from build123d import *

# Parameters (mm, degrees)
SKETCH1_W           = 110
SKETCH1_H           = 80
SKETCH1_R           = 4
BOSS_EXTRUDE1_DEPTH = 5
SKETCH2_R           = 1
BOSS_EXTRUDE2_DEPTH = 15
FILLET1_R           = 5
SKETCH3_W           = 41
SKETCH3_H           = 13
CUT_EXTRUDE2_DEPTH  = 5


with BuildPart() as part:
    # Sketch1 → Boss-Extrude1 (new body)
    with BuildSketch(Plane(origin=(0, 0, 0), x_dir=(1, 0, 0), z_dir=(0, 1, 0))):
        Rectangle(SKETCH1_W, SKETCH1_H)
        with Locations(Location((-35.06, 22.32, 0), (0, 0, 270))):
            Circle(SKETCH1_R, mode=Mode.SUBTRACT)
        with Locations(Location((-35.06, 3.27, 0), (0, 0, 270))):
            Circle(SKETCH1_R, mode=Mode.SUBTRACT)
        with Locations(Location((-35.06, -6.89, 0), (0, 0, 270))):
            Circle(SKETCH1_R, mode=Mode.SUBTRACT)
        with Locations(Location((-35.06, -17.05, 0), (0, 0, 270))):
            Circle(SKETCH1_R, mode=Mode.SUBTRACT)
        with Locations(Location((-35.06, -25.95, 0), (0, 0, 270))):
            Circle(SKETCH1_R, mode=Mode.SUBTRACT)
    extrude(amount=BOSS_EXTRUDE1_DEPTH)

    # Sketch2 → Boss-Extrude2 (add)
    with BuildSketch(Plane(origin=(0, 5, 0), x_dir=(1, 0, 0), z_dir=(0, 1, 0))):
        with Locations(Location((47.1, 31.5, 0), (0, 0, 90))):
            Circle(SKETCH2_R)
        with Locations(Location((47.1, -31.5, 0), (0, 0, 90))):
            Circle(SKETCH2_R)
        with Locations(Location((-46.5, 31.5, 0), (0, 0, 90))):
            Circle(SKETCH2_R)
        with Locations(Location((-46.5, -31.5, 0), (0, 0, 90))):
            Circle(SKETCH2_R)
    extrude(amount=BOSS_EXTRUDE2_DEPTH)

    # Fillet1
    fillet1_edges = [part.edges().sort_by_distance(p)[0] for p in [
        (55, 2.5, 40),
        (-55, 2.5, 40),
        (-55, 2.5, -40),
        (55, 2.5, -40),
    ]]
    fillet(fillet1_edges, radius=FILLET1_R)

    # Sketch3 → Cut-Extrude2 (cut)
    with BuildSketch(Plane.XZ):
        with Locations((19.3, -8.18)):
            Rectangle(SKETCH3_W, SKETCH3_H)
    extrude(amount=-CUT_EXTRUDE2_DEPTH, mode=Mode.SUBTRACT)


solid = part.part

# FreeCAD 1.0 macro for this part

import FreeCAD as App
import Part
import Sketcher
Q = App.Units.Quantity


def edges_at(feature, points):
    """Names of the edges that pass closest to the given points."""
    edges = feature.Shape.Edges
    near = lambda p: min(range(len(edges)), key=lambda i: edges[i].distToShape(Part.Vertex(*p))[0])
    return sorted({f"Edge{near(p) + 1}" for p in points})


def add_polygon(sketch, points):
    """Adds a closed chain of lines whose ends are joined by coincident constraints."""
    first, n = sketch.GeometryCount, len(points)
    for a, b in zip(points, points[1:] + points[:1]):
        sketch.addGeometry(Part.LineSegment(App.Vector(*a, 0), App.Vector(*b, 0)), False)
    for i in range(n):
        sketch.addConstraint(Sketcher.Constraint("Coincident", first + i, 2, first + (i + 1) % n, 1))

doc = App.newDocument("Part")
params = doc.addObject("Spreadsheet::Sheet", "Params")
for row, (alias, value) in enumerate([
    ("sketch1_diameter", "8 mm"),
    ("sketch1_width", "110 mm"),
    ("sketch1_height", "80 mm"),
    ("pad1_length", "5 mm"),
    ("sketch2_diameter", "2 mm"),
    ("pad2_length", "15 mm"),
    ("fillet_radius", "5 mm"),
    ("sketch3_width", "41 mm"),
    ("sketch3_height", "13 mm"),
    ("pocket1_length", "5 mm"),
], start=1):
    params.set(f"A{row}", alias)
    params.set(f"B{row}", "=" + value)
    params.setAlias(f"B{row}", alias)

body = doc.addObject("PartDesign::Body", "Body")

# Sketch on XZ plane
sketch1 = body.newObject("Sketcher::SketchObject", "Sketch")
sketch1.AttachmentSupport = (doc.getObject("XZ_Plane"), [""])
sketch1.MapMode = "FlatFace"
add_polygon(sketch1, [(-55, -40), (-55, 40), (55, 40), (55, -40)])  # lines 0-3
sketch1.addGeometry(Part.Circle(App.Vector(-35.1, 25.9, 0), App.Vector(0, 0, 1), 4), False)  # 4
sketch1.addGeometry(Part.Circle(App.Vector(-35.1, 17.1, 0), App.Vector(0, 0, 1), 4), False)  # 5
sketch1.addGeometry(Part.Circle(App.Vector(-35.1, 6.9, 0), App.Vector(0, 0, 1), 4), False)  # 6
sketch1.addGeometry(Part.Circle(App.Vector(-35.1, -3.3, 0), App.Vector(0, 0, 1), 4), False)  # 7
sketch1.addGeometry(Part.Circle(App.Vector(-35.1, -22.3, 0), App.Vector(0, 0, 1), 4), False)  # 8
sketch1.addConstraint([
    Sketcher.Constraint("Vertical", 0),
    Sketcher.Constraint("Horizontal", 1),
    Sketcher.Constraint("Vertical", 2),
    Sketcher.Constraint("Horizontal", 3),
    Sketcher.Constraint("Equal", 4, 5),
    Sketcher.Constraint("Equal", 5, 6),
    Sketcher.Constraint("Equal", 6, 7),
    Sketcher.Constraint("Equal", 7, 8),
    Sketcher.Constraint("Symmetric", 0, 2, 2, 2, -1, 1),
    Sketcher.Constraint("Vertical", 4, 3, 5, 3),
    Sketcher.Constraint("Vertical", 5, 3, 6, 3),
    Sketcher.Constraint("Vertical", 6, 3, 7, 3),
    Sketcher.Constraint("Vertical", 7, 3, 8, 3),
    Sketcher.Constraint("Diameter", 4, Q("8 mm")),
    Sketcher.Constraint("DistanceX", 1, 1, 1, 2, Q("110 mm")),
    Sketcher.Constraint("DistanceY", 0, 1, 0, 2, Q("80 mm")),
    Sketcher.Constraint("DistanceY", 5, 3, 4, 3, Q("8.9 mm")),
    Sketcher.Constraint("DistanceX", 4, 3, -1, 1, Q("35.06 mm")),
    Sketcher.Constraint("DistanceY", -1, 1, 4, 3, Q("25.95 mm")),
    Sketcher.Constraint("DistanceY", -1, 1, 6, 3, Q("6.89 mm")),
    Sketcher.Constraint("DistanceY", 7, 3, -1, 1, Q("3.27 mm")),
    Sketcher.Constraint("DistanceY", 8, 3, -1, 1, Q("22.32 mm")),
])
sketch1.setExpression("Constraints[17]", "Params.sketch1_diameter")
sketch1.setExpression("Constraints[18]", "Params.sketch1_width")
sketch1.setExpression("Constraints[19]", "Params.sketch1_height")
pad1 = body.newObject("PartDesign::Pad", "Pad")
pad1.Profile = sketch1
pad1.setExpression("Length", "Params.pad1_length")
pad1.Reversed = True

# Sketch on XZ plane
sketch2 = body.newObject("Sketcher::SketchObject", "Sketch001")
sketch2.AttachmentSupport = (doc.getObject("XZ_Plane"), [""])
sketch2.MapMode = "FlatFace"
sketch2.AttachmentOffset = App.Placement(App.Vector(0, 0, -5), App.Rotation())
sketch2.addGeometry([
    Part.Circle(App.Vector(47.1, -31.5, 0), App.Vector(0, 0, 1), 1),
    Part.Circle(App.Vector(47.1, 31.5, 0), App.Vector(0, 0, 1), 1),
    Part.Circle(App.Vector(-46.5, -31.5, 0), App.Vector(0, 0, 1), 1),
    Part.Circle(App.Vector(-46.5, 31.5, 0), App.Vector(0, 0, 1), 1),
], False)
sketch2.addConstraint([
    Sketcher.Constraint("Equal", 0, 1),
    Sketcher.Constraint("Equal", 1, 2),
    Sketcher.Constraint("Equal", 2, 3),
    Sketcher.Constraint("Symmetric", 0, 3, 1, 3, -1),
    Sketcher.Constraint("Symmetric", 2, 3, 3, 3, -1),
    Sketcher.Constraint("Horizontal", 0, 3, 2, 3),
    Sketcher.Constraint("Diameter", 0, Q("2 mm")),
    Sketcher.Constraint("DistanceY", 0, 3, 1, 3, Q("63 mm")),
    Sketcher.Constraint("DistanceX", -1, 1, 0, 3, Q("47.1 mm")),
    Sketcher.Constraint("DistanceX", 2, 3, -1, 1, Q("46.5 mm")),
])
sketch2.setExpression("Constraints[6]", "Params.sketch2_diameter")
pad2 = body.newObject("PartDesign::Pad", "Pad001")
pad2.Profile = sketch2
pad2.setExpression("Length", "Params.pad2_length")
pad2.Reversed = True
doc.recompute()

fillet = body.newObject("PartDesign::Fillet", "Fillet")
fillet.Base = (pad2, edges_at(pad2, [
    (55, 2.5, 40),
    (-55, 2.5, 40),
    (-55, 2.5, -40),
    (55, 2.5, -40),
]))
fillet.setExpression("Radius", "Params.fillet_radius")

# Sketch on XZ plane
sketch3 = body.newObject("Sketcher::SketchObject", "Sketch002")
sketch3.AttachmentSupport = (doc.getObject("XZ_Plane"), [""])
sketch3.MapMode = "FlatFace"
add_polygon(sketch3, [(-1, -2), (-1, -15), (40, -15), (40, -2)])  # lines 0-3
sketch3.addConstraint([
    Sketcher.Constraint("Vertical", 0),
    Sketcher.Constraint("Horizontal", 1),
    Sketcher.Constraint("Vertical", 2),
    Sketcher.Constraint("Horizontal", 3),
    Sketcher.Constraint("DistanceX", 1, 1, 1, 2, Q("41 mm")),
    Sketcher.Constraint("DistanceY", 0, 2, 0, 1, Q("13 mm")),
    Sketcher.Constraint("DistanceX", 0, 2, -1, 1, Q("1.2 mm")),
    Sketcher.Constraint("DistanceY", 0, 2, -1, 1, Q("14.68 mm")),
])
sketch3.setExpression("Constraints[8]", "Params.sketch3_width")
sketch3.setExpression("Constraints[9]", "Params.sketch3_height")
pocket1 = body.newObject("PartDesign::Pocket", "Pocket")
pocket1.Profile = sketch3
pocket1.setExpression("Length", "Params.pocket1_length")

doc.recompute()
